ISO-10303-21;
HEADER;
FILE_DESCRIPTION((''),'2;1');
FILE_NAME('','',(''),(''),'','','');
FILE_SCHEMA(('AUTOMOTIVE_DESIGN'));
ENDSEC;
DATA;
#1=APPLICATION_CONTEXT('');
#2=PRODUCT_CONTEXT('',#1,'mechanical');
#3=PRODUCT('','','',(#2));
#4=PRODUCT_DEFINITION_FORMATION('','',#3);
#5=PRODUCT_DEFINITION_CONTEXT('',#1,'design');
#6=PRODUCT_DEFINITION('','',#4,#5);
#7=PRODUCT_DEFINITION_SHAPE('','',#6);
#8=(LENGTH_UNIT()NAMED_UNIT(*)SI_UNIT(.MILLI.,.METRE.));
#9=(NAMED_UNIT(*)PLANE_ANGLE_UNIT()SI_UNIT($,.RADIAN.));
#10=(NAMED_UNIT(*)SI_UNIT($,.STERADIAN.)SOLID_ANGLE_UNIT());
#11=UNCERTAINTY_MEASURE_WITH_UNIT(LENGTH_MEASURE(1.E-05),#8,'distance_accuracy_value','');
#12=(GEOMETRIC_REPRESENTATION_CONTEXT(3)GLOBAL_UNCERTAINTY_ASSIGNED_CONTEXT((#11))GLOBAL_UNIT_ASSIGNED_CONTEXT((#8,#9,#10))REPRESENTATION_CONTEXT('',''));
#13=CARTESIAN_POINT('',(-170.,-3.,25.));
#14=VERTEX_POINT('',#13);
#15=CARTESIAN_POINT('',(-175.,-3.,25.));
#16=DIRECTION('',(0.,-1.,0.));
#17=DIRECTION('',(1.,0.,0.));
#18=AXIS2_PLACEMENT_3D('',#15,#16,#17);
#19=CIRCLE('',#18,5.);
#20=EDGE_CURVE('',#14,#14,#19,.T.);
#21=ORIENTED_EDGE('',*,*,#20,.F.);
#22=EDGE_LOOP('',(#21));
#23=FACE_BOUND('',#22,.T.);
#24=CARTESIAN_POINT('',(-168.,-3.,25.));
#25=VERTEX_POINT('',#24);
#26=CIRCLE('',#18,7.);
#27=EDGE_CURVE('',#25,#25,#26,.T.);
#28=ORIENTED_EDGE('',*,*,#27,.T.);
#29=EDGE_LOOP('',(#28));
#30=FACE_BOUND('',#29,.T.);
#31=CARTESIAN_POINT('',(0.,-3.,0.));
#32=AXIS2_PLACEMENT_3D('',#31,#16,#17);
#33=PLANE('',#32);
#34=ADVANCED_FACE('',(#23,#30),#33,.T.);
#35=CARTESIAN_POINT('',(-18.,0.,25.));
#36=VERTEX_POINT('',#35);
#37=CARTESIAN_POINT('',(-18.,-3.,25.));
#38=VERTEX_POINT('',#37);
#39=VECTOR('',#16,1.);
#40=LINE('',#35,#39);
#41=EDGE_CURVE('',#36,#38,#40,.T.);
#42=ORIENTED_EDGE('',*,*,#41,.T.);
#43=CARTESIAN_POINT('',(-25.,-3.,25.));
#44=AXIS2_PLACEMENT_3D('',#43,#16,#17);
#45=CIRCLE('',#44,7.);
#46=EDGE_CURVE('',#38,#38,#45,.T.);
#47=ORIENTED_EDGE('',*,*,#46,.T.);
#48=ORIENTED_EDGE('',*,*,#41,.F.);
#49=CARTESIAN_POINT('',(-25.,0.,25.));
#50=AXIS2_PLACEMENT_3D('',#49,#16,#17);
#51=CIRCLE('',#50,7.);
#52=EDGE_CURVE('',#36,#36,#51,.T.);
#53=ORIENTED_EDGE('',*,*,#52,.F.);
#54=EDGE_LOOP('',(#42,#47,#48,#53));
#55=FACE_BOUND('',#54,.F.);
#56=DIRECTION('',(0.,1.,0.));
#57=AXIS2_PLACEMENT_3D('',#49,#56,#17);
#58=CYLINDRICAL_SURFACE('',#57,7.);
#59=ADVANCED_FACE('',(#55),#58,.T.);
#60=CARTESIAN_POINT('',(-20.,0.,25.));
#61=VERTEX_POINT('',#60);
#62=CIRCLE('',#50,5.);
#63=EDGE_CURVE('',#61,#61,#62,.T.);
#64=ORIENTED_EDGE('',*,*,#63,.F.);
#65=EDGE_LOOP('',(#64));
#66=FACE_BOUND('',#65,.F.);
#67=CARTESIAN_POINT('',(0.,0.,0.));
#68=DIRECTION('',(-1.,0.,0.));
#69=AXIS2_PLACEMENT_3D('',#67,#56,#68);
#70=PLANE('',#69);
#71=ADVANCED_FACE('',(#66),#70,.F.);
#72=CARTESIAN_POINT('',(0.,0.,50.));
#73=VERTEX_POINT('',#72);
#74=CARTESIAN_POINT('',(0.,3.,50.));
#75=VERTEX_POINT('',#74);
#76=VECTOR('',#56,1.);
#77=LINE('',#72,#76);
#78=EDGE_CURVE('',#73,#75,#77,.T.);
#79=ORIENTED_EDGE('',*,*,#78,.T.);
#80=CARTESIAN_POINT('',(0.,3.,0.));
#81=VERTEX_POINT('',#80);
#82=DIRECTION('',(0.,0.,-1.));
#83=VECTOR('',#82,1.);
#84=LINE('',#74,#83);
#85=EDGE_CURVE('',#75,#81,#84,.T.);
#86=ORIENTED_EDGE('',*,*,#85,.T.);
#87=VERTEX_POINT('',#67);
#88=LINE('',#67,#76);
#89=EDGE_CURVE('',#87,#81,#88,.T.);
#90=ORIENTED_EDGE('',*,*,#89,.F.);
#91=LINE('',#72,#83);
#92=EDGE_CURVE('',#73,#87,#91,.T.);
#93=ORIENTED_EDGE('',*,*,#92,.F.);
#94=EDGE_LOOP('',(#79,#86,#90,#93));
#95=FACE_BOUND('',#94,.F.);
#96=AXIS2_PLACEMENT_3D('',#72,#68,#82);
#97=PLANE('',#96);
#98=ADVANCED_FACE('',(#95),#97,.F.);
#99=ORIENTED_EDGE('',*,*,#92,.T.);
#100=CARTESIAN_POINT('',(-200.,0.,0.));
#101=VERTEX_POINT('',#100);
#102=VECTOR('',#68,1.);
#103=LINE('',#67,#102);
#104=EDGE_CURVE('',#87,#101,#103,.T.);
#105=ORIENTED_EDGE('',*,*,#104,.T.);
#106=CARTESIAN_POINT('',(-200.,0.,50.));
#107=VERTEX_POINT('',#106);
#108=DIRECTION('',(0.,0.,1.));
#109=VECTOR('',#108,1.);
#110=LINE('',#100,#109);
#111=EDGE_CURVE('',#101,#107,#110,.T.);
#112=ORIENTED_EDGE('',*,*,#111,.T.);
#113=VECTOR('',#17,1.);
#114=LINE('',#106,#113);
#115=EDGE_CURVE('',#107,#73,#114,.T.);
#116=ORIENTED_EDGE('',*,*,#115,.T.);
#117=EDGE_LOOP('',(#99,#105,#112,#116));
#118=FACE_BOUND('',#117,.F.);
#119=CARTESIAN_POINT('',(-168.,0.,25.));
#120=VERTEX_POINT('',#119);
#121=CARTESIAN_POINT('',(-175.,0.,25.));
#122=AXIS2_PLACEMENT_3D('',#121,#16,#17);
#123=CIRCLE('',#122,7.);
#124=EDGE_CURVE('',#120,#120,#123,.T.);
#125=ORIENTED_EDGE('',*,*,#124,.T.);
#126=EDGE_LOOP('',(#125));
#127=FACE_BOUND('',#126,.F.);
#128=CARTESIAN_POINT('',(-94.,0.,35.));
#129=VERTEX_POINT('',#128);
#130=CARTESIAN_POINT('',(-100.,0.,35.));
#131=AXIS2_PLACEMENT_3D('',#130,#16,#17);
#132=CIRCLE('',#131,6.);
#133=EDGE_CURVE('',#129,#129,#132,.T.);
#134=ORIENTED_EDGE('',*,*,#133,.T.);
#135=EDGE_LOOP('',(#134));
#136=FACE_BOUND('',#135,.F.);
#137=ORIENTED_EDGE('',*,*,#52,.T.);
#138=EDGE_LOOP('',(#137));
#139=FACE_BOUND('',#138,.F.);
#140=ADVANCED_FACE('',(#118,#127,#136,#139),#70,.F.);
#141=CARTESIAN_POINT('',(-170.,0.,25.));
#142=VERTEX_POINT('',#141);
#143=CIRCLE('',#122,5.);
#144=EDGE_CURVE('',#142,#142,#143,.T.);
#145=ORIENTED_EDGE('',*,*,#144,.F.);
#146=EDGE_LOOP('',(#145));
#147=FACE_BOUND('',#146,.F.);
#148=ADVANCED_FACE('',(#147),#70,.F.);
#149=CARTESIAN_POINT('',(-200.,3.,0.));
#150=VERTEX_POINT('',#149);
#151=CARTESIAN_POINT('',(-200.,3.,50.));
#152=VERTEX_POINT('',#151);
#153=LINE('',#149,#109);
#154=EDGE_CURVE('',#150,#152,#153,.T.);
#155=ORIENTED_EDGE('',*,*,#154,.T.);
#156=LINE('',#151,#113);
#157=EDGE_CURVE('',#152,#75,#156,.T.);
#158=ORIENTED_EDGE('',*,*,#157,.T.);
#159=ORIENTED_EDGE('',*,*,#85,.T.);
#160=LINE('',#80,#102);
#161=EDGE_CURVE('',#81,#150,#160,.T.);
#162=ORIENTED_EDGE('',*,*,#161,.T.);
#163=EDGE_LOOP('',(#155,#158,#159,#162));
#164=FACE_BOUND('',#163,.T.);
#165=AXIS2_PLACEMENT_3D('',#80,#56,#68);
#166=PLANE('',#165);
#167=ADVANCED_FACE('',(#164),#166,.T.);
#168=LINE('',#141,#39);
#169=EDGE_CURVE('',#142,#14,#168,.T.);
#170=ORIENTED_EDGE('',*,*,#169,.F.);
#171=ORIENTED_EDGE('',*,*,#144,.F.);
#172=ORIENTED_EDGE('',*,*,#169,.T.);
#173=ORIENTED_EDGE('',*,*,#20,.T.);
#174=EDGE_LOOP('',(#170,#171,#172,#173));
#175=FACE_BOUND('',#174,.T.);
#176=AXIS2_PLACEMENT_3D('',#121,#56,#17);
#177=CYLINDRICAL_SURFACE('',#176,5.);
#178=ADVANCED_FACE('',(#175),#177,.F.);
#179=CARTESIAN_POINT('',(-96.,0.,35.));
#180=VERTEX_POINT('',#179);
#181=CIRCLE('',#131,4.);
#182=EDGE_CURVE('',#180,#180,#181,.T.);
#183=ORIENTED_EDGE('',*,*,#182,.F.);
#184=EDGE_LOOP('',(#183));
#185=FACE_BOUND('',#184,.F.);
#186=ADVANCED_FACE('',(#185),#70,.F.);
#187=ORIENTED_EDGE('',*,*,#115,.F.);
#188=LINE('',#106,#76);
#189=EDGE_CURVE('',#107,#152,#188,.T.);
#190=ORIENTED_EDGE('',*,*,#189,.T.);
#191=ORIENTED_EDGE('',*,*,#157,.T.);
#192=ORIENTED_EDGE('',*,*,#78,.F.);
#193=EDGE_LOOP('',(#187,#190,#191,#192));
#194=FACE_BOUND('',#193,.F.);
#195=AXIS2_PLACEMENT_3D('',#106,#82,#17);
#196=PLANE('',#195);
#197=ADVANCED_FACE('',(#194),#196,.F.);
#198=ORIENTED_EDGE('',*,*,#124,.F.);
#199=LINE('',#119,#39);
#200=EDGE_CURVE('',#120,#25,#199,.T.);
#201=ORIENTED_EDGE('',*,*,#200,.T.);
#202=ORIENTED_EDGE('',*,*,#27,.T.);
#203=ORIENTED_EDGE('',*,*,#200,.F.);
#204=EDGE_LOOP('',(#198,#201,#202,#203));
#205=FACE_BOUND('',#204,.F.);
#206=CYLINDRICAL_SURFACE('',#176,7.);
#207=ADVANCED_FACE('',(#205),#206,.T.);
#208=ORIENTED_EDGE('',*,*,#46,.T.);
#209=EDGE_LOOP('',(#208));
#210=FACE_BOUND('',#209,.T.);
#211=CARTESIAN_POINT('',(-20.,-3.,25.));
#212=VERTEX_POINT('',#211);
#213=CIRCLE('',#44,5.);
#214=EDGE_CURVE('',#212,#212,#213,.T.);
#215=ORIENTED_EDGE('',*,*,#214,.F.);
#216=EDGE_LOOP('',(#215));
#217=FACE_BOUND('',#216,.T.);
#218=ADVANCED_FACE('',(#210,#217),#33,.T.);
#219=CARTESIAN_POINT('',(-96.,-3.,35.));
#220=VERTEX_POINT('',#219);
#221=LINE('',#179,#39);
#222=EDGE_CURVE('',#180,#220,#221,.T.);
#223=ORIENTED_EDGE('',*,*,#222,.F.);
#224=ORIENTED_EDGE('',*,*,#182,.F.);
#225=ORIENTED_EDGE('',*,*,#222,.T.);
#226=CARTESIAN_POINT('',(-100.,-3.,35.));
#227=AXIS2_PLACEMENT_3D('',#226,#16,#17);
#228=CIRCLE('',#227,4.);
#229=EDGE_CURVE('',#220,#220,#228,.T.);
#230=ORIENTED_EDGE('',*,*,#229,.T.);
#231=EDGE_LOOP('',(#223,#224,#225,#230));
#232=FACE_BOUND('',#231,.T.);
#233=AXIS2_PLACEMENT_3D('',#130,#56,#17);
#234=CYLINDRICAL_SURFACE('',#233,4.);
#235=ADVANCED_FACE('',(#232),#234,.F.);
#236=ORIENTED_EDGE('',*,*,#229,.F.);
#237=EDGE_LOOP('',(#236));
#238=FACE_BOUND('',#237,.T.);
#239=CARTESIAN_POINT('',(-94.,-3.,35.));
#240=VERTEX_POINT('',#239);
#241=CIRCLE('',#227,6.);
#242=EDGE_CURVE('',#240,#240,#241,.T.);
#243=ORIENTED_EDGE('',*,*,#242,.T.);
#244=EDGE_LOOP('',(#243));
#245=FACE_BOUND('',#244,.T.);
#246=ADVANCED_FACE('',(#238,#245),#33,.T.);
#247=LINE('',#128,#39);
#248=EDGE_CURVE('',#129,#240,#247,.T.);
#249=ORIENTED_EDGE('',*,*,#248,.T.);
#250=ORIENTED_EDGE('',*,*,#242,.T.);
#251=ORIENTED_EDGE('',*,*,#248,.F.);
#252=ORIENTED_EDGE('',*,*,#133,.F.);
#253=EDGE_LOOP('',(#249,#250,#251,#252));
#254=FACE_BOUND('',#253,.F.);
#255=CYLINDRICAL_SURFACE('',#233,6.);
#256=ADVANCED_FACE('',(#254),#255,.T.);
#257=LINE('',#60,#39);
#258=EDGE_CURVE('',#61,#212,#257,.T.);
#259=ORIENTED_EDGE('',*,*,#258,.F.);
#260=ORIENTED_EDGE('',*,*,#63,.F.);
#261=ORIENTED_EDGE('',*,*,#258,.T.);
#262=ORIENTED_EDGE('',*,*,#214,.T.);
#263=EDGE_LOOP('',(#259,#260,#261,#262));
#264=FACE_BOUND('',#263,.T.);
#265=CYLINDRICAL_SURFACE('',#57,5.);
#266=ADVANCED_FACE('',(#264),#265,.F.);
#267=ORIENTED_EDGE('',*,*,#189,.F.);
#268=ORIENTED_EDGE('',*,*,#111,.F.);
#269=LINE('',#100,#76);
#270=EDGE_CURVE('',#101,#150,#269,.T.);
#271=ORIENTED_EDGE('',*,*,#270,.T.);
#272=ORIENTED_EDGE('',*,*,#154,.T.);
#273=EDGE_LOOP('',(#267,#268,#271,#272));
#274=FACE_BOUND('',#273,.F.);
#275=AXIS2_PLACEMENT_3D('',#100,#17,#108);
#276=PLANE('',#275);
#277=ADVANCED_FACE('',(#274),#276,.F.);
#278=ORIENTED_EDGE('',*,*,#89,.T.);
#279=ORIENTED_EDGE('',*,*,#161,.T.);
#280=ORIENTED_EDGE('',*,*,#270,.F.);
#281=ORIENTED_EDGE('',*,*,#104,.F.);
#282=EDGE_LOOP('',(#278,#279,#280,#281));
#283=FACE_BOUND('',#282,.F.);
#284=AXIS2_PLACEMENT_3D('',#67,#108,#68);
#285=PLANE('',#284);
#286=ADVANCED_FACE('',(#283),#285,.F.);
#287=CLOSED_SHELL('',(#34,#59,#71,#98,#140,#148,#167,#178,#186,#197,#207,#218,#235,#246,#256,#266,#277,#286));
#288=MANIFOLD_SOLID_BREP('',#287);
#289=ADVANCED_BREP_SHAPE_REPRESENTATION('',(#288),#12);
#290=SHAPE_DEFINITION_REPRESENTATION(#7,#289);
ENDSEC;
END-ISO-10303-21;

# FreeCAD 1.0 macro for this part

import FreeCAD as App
import Part
import Sketcher
Q = App.Units.Quantity


def add_polygon(sketch, points):
    """Adds a closed chain of lines whose ends are joined by coincident constraints."""
    first, n = sketch.GeometryCount, len(points)
    for a, b in zip(points, points[1:] + points[:1]):
        sketch.addGeometry(Part.LineSegment(App.Vector(*a, 0), App.Vector(*b, 0)), False)
    for i in range(n):
        sketch.addConstraint(Sketcher.Constraint("Coincident", first + i, 2, first + (i + 1) % n, 1))

doc = App.newDocument("Part")
params = doc.addObject("Spreadsheet::Sheet", "Params")
for row, (alias, value) in enumerate([
    ("sketch1_width", "200 mm"),
    ("sketch1_height", "50 mm"),
    ("pad1_length", "3 mm"),
    ("sketch2_diameter", "12 mm"),
    ("sketch2_diameter2", "8 mm"),
    ("pad2_length", "3 mm"),
    ("sketch3_diameter", "14 mm"),
    ("sketch3_diameter2", "10 mm"),
    ("pad3_length", "3 mm"),
    ("sketch4_diameter", "14 mm"),
    ("sketch4_diameter2", "10 mm"),
    ("pad4_length", "3 mm"),
], start=1):
    params.set(f"A{row}", alias)
    params.set(f"B{row}", "=" + value)
    params.setAlias(f"B{row}", alias)

body = doc.addObject("PartDesign::Body", "Body")

# Sketch on XZ plane
sketch1 = body.newObject("Sketcher::SketchObject", "Sketch")
sketch1.AttachmentSupport = (doc.getObject("XZ_Plane"), [""])
sketch1.MapMode = "FlatFace"
add_polygon(sketch1, [(0, 50), (0, 0), (-200, 0), (-200, 50)])  # lines 0-3
sketch1.addConstraint(Sketcher.Constraint("Vertical", 0))
sketch1.addConstraint(Sketcher.Constraint("Horizontal", 1))
sketch1.addConstraint(Sketcher.Constraint("Vertical", 2))
sketch1.addConstraint(Sketcher.Constraint("Horizontal", 3))
sketch1.addConstraint(Sketcher.Constraint("Coincident", 0, 2, -1, 1))
sketch1.addConstraint(Sketcher.Constraint("DistanceX", 1, 2, 1, 1, Q("200 mm")))
sketch1.addConstraint(Sketcher.Constraint("DistanceY", 0, 2, 0, 1, Q("50 mm")))
sketch1.setExpression("Constraints[9]", "Params.sketch1_width")
sketch1.setExpression("Constraints[10]", "Params.sketch1_height")
pad1 = body.newObject("PartDesign::Pad", "Pad")
pad1.Profile = sketch1
pad1.setExpression("Length", "Params.pad1_length")
pad1.Reversed = True

# Sketch on XZ plane
sketch2 = body.newObject("Sketcher::SketchObject", "Sketch001")
sketch2.AttachmentSupport = (doc.getObject("XZ_Plane"), [""])
sketch2.MapMode = "FlatFace"
sketch2.addGeometry(Part.Circle(App.Vector(-100, 35, 0), App.Vector(0, 0, 1), 6), False)
sketch2.addGeometry(Part.Circle(App.Vector(-100, 35, 0), App.Vector(0, 0, 1), 4), False)
sketch2.addConstraint(Sketcher.Constraint("Coincident", 1, 3, 0, 3))
sketch2.addConstraint(Sketcher.Constraint("Diameter", 0, Q("12 mm")))
sketch2.addConstraint(Sketcher.Constraint("Diameter", 1, Q("8 mm")))
sketch2.addConstraint(Sketcher.Constraint("DistanceX", 0, 3, -1, 1, Q("100 mm")))
sketch2.addConstraint(Sketcher.Constraint("DistanceY", -1, 1, 0, 3, Q("35 mm")))
sketch2.setExpression("Constraints[1]", "Params.sketch2_diameter")
sketch2.setExpression("Constraints[2]", "Params.sketch2_diameter2")
pad2 = body.newObject("PartDesign::Pad", "Pad001")
pad2.Profile = sketch2
pad2.setExpression("Length", "Params.pad2_length")

# Sketch on XZ plane
sketch3 = body.newObject("Sketcher::SketchObject", "Sketch002")
sketch3.AttachmentSupport = (doc.getObject("XZ_Plane"), [""])
sketch3.MapMode = "FlatFace"
sketch3.addGeometry(Part.Circle(App.Vector(-175, 25, 0), App.Vector(0, 0, 1), 7), False)
sketch3.addGeometry(Part.Circle(App.Vector(-175, 25, 0), App.Vector(0, 0, 1), 5), False)
sketch3.addConstraint(Sketcher.Constraint("Coincident", 1, 3, 0, 3))
sketch3.addConstraint(Sketcher.Constraint("Diameter", 0, Q("14 mm")))
sketch3.addConstraint(Sketcher.Constraint("Diameter", 1, Q("10 mm")))
sketch3.addConstraint(Sketcher.Constraint("DistanceY", -1, 1, 0, 3, Q("25 mm")))
sketch3.addConstraint(Sketcher.Constraint("DistanceX", 0, 3, -1, 1, Q("175 mm")))
sketch3.setExpression("Constraints[1]", "Params.sketch3_diameter")
sketch3.setExpression("Constraints[2]", "Params.sketch3_diameter2")
pad3 = body.newObject("PartDesign::Pad", "Pad002")
pad3.Profile = sketch3
pad3.setExpression("Length", "Params.pad3_length")

# Sketch on XZ plane
sketch4 = body.newObject("Sketcher::SketchObject", "Sketch003")
sketch4.AttachmentSupport = (doc.getObject("XZ_Plane"), [""])
sketch4.MapMode = "FlatFace"
sketch4.addGeometry(Part.Circle(App.Vector(-25, 25, 0), App.Vector(0, 0, 1), 7), False)
sketch4.addGeometry(Part.Circle(App.Vector(-25, 25, 0), App.Vector(0, 0, 1), 5), False)
sketch4.addConstraint(Sketcher.Constraint("Coincident", 1, 3, 0, 3))
sketch4.addConstraint(Sketcher.Constraint("Diameter", 0, Q("14 mm")))
sketch4.addConstraint(Sketcher.Constraint("Diameter", 1, Q("10 mm")))
sketch4.addConstraint(Sketcher.Constraint("DistanceX", 0, 3, -1, 1, Q("25 mm")))
sketch4.addConstraint(Sketcher.Constraint("DistanceY", -1, 1, 0, 3, Q("25 mm")))
sketch4.setExpression("Constraints[1]", "Params.sketch4_diameter")
sketch4.setExpression("Constraints[2]", "Params.sketch4_diameter2")
pad4 = body.newObject("PartDesign::Pad", "Pad003")
pad4.Profile = sketch4
pad4.setExpression("Length", "Params.pad4_length")

doc.recompute()
